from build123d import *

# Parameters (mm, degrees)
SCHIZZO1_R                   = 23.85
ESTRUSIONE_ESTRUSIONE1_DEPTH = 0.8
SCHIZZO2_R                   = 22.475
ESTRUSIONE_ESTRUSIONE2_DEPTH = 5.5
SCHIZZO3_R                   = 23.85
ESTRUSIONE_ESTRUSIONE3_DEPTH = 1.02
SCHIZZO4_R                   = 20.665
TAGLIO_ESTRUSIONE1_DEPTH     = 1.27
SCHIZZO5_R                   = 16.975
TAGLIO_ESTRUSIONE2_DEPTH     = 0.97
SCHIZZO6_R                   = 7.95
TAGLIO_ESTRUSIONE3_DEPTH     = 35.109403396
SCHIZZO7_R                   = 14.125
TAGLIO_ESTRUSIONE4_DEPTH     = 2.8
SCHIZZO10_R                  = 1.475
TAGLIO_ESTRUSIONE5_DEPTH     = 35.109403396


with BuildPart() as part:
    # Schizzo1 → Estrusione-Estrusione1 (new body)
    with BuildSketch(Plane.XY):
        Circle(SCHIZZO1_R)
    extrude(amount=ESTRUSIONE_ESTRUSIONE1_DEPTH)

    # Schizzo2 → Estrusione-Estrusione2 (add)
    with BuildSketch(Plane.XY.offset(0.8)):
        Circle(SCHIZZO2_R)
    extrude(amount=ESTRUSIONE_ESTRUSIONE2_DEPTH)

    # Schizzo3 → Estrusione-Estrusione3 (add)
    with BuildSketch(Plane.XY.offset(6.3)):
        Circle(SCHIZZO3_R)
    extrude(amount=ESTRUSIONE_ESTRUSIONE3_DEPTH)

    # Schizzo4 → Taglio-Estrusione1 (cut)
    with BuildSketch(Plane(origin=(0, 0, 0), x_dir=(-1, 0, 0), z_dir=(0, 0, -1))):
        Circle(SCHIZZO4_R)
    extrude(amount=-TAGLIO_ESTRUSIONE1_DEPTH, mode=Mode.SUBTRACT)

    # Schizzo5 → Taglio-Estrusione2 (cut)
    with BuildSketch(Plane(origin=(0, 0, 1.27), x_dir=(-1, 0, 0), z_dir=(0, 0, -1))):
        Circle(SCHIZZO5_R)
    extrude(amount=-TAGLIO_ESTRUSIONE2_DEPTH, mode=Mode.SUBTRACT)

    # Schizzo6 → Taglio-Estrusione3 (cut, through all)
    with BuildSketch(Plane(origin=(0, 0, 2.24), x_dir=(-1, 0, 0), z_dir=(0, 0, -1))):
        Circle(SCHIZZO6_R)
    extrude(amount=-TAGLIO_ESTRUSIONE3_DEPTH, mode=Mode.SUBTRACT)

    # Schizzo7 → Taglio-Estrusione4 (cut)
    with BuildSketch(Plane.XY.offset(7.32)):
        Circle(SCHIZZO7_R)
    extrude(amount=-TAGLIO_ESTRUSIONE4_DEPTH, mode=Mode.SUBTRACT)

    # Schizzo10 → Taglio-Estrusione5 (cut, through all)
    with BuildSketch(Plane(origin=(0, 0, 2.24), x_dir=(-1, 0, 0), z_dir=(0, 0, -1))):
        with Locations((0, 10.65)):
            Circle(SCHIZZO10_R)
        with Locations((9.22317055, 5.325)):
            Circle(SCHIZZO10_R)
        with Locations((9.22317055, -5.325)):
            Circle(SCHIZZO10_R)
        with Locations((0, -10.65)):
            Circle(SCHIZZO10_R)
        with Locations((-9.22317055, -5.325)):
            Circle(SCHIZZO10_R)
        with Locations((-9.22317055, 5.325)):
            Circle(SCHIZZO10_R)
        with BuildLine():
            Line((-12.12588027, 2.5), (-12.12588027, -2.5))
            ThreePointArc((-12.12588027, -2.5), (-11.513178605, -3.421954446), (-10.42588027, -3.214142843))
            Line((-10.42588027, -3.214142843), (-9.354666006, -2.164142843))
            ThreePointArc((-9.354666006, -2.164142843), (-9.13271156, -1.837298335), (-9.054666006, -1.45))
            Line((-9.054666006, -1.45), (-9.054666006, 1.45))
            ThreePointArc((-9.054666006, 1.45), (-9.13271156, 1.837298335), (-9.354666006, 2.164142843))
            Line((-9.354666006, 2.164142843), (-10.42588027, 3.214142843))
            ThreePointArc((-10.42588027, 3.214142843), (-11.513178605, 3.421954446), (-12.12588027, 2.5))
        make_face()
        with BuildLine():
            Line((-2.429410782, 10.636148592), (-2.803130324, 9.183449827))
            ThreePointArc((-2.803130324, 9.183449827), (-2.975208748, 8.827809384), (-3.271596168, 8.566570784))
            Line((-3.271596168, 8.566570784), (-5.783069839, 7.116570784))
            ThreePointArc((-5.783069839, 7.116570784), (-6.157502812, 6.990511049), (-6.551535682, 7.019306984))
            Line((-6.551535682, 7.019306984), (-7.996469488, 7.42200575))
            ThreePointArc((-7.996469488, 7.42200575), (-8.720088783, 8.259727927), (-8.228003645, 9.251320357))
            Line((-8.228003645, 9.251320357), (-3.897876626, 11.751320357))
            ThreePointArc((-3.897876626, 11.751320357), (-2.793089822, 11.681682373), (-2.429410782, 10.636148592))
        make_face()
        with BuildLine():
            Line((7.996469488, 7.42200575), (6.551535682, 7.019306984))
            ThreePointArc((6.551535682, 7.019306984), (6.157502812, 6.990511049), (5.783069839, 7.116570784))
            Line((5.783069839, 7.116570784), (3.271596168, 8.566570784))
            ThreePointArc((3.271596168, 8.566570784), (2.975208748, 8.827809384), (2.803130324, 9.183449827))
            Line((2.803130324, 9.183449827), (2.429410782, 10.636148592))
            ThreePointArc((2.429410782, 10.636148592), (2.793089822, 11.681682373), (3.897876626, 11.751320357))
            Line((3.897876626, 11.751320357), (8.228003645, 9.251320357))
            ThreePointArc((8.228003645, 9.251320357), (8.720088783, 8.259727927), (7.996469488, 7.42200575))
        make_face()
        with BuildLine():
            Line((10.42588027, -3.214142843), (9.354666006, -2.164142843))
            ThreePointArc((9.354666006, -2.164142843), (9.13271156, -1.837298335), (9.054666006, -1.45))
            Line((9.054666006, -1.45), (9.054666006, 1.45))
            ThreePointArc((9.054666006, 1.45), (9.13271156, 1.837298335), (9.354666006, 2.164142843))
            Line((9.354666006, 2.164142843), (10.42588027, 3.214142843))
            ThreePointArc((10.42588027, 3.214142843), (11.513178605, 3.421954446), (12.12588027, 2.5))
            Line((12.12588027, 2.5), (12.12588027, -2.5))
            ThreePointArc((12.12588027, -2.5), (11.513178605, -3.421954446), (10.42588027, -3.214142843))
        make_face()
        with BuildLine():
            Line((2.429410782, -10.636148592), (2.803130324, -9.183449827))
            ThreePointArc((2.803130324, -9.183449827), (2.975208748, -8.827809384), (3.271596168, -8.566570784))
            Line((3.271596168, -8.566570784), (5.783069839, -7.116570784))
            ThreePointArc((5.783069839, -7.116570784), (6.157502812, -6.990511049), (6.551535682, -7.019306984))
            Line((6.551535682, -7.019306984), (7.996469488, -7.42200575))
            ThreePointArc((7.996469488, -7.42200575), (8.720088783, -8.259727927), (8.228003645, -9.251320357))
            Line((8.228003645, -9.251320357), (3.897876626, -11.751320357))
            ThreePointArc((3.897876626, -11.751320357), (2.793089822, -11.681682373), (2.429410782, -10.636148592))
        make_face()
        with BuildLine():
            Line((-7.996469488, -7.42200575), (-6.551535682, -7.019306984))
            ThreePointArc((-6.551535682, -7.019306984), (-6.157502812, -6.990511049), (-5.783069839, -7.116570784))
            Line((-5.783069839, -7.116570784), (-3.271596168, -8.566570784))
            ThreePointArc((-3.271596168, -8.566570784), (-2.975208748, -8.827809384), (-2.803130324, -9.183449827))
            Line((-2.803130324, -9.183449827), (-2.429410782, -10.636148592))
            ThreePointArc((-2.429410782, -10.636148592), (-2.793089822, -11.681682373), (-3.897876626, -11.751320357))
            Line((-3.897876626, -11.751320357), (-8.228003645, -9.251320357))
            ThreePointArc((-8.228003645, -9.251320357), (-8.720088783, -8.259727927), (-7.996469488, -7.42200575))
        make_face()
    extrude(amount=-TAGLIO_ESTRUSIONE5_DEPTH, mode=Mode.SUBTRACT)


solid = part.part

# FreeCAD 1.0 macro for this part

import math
import FreeCAD as App
import Part
import Sketcher
from FreeCAD import Vector
Q = App.Units.Quantity

doc = App.newDocument("Part")
body = doc.addObject("PartDesign::Body", "Body")

sketch1 = body.newObject("Sketcher::SketchObject", "Sketch")
sketch1.AttachmentSupport = (doc.getObject("XY_Plane"), [""])
sketch1.MapMode = "FlatFace"
sketch1.addGeometry(Part.Circle(Vector(0, 0, 0), Vector(0, 0, 1), 24), False)
sketch1.addConstraint([
    Sketcher.Constraint("Coincident", 0, 3, -1, 1),
    Sketcher.Constraint("Diameter", 0, 47.7),
])
pad1 = body.newObject("PartDesign::Pad", "Pad")
pad1.Profile = sketch1
pad1.Length = 0.8

sketch2 = body.newObject("Sketcher::SketchObject", "Sketch001")
sketch2.AttachmentSupport = (doc.getObject("XY_Plane"), [""])
sketch2.MapMode = "FlatFace"
sketch2.AttachmentOffset = App.Placement(Vector(0, 0, 0.8), App.Rotation())
sketch2.addGeometry(Part.Circle(Vector(0, 0, 0), Vector(0, 0, 1), 22), False)
sketch2.addConstraint([
    Sketcher.Constraint("Coincident", 0, 3, -1, 1),
    Sketcher.Constraint("Diameter", 0, 44.95),
])
pad2 = body.newObject("PartDesign::Pad", "Pad001")
pad2.Profile = sketch2
pad2.Length = 5.5

sketch3 = body.newObject("Sketcher::SketchObject", "Sketch002")
sketch3.AttachmentSupport = (doc.getObject("XY_Plane"), [""])
sketch3.MapMode = "FlatFace"
sketch3.AttachmentOffset = App.Placement(Vector(0, 0, 6.3), App.Rotation())
sketch3.addGeometry(Part.Circle(Vector(0, 0, 0), Vector(0, 0, 1), 24), False)
sketch3.addConstraint([
    Sketcher.Constraint("Coincident", 0, 3, -1, 1),
    Sketcher.Constraint("Diameter", 0, 47.7),
])
pad3 = body.newObject("PartDesign::Pad", "Pad002")
pad3.Profile = sketch3
pad3.Length = 1.02

sketch4 = body.newObject("Sketcher::SketchObject", "Sketch003")
sketch4.AttachmentSupport = (doc.getObject("XY_Plane"), [""])
sketch4.MapMode = "FlatFace"
sketch4.addGeometry(Part.Circle(Vector(0, 0, 0), Vector(0, 0, 1), 21), False)
sketch4.addConstraint([
    Sketcher.Constraint("Coincident", 0, 3, -1, 1),
    Sketcher.Constraint("Diameter", 0, 41.33),
])
pocket1 = body.newObject("PartDesign::Pocket", "Pocket")
pocket1.Profile = sketch4
pocket1.Length = 1.27
pocket1.Reversed = True

sketch5 = body.newObject("Sketcher::SketchObject", "Sketch004")
sketch5.AttachmentSupport = (doc.getObject("XY_Plane"), [""])
sketch5.MapMode = "FlatFace"
sketch5.AttachmentOffset = App.Placement(Vector(0, 0, 1.27), App.Rotation())
sketch5.addGeometry(Part.Circle(Vector(0, 0, 0), Vector(0, 0, 1), 17), False)
sketch5.addConstraint([
    Sketcher.Constraint("Coincident", 0, 3, -1, 1),
    Sketcher.Constraint("Diameter", 0, 33.95),
])
pocket2 = body.newObject("PartDesign::Pocket", "Pocket001")
pocket2.Profile = sketch5
pocket2.Length = 0.97
pocket2.Reversed = True

sketch6 = body.newObject("Sketcher::SketchObject", "Sketch005")
sketch6.AttachmentSupport = (doc.getObject("XY_Plane"), [""])
sketch6.MapMode = "FlatFace"
sketch6.AttachmentOffset = App.Placement(Vector(0, 0, 2.24), App.Rotation())
sketch6.addGeometry(Part.Circle(Vector(0, 0, 0), Vector(0, 0, 1), 8), False)
sketch6.addConstraint([
    Sketcher.Constraint("Coincident", 0, 3, -1, 1),
    Sketcher.Constraint("Diameter", 0, 15.9),
])
pocket3 = body.newObject("PartDesign::Pocket", "Pocket002")
pocket3.Profile = sketch6
pocket3.Type = "ThroughAll"
pocket3.Reversed = True

sketch7 = body.newObject("Sketcher::SketchObject", "Sketch006")
sketch7.AttachmentSupport = (doc.getObject("XY_Plane"), [""])
sketch7.MapMode = "FlatFace"
sketch7.AttachmentOffset = App.Placement(Vector(0, 0, 7.32), App.Rotation())
sketch7.addGeometry(Part.Circle(Vector(0, 0, 0), Vector(0, 0, 1), 14), False)
sketch7.addConstraint([
    Sketcher.Constraint("Coincident", 0, 3, -1, 1),
    Sketcher.Constraint("Diameter", 0, 28.25),
])
pocket4 = body.newObject("PartDesign::Pocket", "Pocket003")
pocket4.Profile = sketch7
pocket4.Length = 2.8

sketch8 = body.newObject("Sketcher::SketchObject", "Sketch007")
sketch8.AttachmentSupport = (doc.getObject("XY_Plane"), [""])
sketch8.MapMode = "FlatFace"
sketch8.AttachmentOffset = App.Placement(Vector(0, 0, 2.24), App.Rotation())
sketch8.addGeometry([
    Part.Circle(Vector(0, 10.7, 0), Vector(0, 0, 1), 1.5),
    Part.Circle(Vector(-9.2, 5.3, 0), Vector(0, 0, 1), 1.5),
    Part.Circle(Vector(-9.2, -5.3, 0), Vector(0, 0, 1), 1.5),
    Part.Circle(Vector(0, -10.7, 0), Vector(0, 0, 1), 1.5),
    Part.Circle(Vector(9.2, -5.3, 0), Vector(0, 0, 1), 1.5),
    Part.Circle(Vector(9.2, 5.3, 0), Vector(0, 0, 1), 1.5),
    Part.LineSegment(Vector(12.1, 2.5, 0), Vector(12.1, -2.5, 0)),
    Part.ArcOfCircle(Part.Circle(Vector(11.1, -2.5, 0), Vector(0, 0, 1), 1), math.radians(-134), math.radians(0)),
    Part.LineSegment(Vector(10.4, -3.2, 0), Vector(9.4, -2.2, 0)),
    Part.ArcOfCircle(Part.Circle(Vector(10.1, -1.5, 0), Vector(0, 0, 1), 1), math.radians(180), math.radians(226)),
    Part.LineSegment(Vector(9.1, -1.4, 0), Vector(9.1, 1.4, 0)),
    Part.ArcOfCircle(Part.Circle(Vector(10.1, 1.5, 0), Vector(0, 0, 1), 1), math.radians(134), math.radians(180)),
    Part.LineSegment(Vector(9.4, 2.2, 0), Vector(10.4, 3.2, 0)),
    Part.ArcOfCircle(Part.Circle(Vector(11.1, 2.5, 0), Vector(0, 0, 1), 1), math.radians(0), math.radians(134)),
    Part.LineSegment(Vector(2.8, 9.2, 0), Vector(2.4, 10.6, 0)),
    Part.ArcOfCircle(Part.Circle(Vector(3.4, 10.9, 0), Vector(0, 0, 1), 1), math.radians(60), math.radians(194)),
    Part.LineSegment(Vector(3.9, 11.8, 0), Vector(8.2, 9.3, 0)),
    Part.ArcOfCircle(Part.Circle(Vector(7.7, 8.4, 0), Vector(0, 0, 1), 1), math.radians(-74), math.radians(60)),
    Part.LineSegment(Vector(8, 7.4, 0), Vector(6.6, 7, 0)),
    Part.ArcOfCircle(Part.Circle(Vector(6.3, 8, 0), Vector(0, 0, 1), 1), math.radians(-120), math.radians(-74)),
    Part.LineSegment(Vector(5.8, 7.1, 0), Vector(3.3, 8.6, 0)),
    Part.ArcOfCircle(Part.Circle(Vector(3.8, 9.4, 0), Vector(0, 0, 1), 1), math.radians(-166), math.radians(-120)),
    Part.LineSegment(Vector(-6.6, 7, 0), Vector(-8, 7.4, 0)),
    Part.ArcOfCircle(Part.Circle(Vector(-7.7, 8.4, 0), Vector(0, 0, 1), 1), math.radians(120), math.radians(254)),
    Part.LineSegment(Vector(-8.2, 9.3, 0), Vector(-3.9, 11.8, 0)),
    Part.ArcOfCircle(Part.Circle(Vector(-3.4, 10.9, 0), Vector(0, 0, 1), 1), math.radians(-14), math.radians(120)),
    Part.LineSegment(Vector(-2.4, 10.6, 0), Vector(-2.8, 9.2, 0)),
    Part.ArcOfCircle(Part.Circle(Vector(-3.8, 9.4, 0), Vector(0, 0, 1), 1), math.radians(-60), math.radians(-14)),
    Part.LineSegment(Vector(-3.3, 8.6, 0), Vector(-5.8, 7.1, 0)),
    Part.ArcOfCircle(Part.Circle(Vector(-6.3, 8, 0), Vector(0, 0, 1), 1), math.radians(-106), math.radians(-60)),
    Part.LineSegment(Vector(-9.4, -2.2, 0), Vector(-10.4, -3.2, 0)),
    Part.ArcOfCircle(Part.Circle(Vector(-11.1, -2.5, 0), Vector(0, 0, 1), 1), math.radians(180), math.radians(314)),
    Part.LineSegment(Vector(-12.1, -2.5, 0), Vector(-12.1, 2.5, 0)),
    Part.ArcOfCircle(Part.Circle(Vector(-11.1, 2.5, 0), Vector(0, 0, 1), 1), math.radians(46), math.radians(180)),
    Part.LineSegment(Vector(-10.4, 3.2, 0), Vector(-9.4, 2.2, 0)),
    Part.ArcOfCircle(Part.Circle(Vector(-10.1, 1.5, 0), Vector(0, 0, 1), 1), math.radians(0), math.radians(46)),
    Part.LineSegment(Vector(-9.1, 1.4, 0), Vector(-9.1, -1.4, 0)),
    Part.ArcOfCircle(Part.Circle(Vector(-10.1, -1.5, 0), Vector(0, 0, 1), 1), math.radians(-46), math.radians(0)),
    Part.LineSegment(Vector(-2.8, -9.2, 0), Vector(-2.4, -10.6, 0)),
    Part.ArcOfCircle(Part.Circle(Vector(-3.4, -10.9, 0), Vector(0, 0, 1), 1), math.radians(-120), math.radians(14)),
    Part.LineSegment(Vector(-3.9, -11.8, 0), Vector(-8.2, -9.3, 0)),
    Part.ArcOfCircle(Part.Circle(Vector(-7.7, -8.4, 0), Vector(0, 0, 1), 1), math.radians(106), math.radians(240)),
    Part.LineSegment(Vector(-8, -7.4, 0), Vector(-6.6, -7, 0)),
    Part.ArcOfCircle(Part.Circle(Vector(-6.3, -8, 0), Vector(0, 0, 1), 1), math.radians(60), math.radians(106)),
    Part.LineSegment(Vector(-5.8, -7.1, 0), Vector(-3.3, -8.6, 0)),
    Part.ArcOfCircle(Part.Circle(Vector(-3.8, -9.4, 0), Vector(0, 0, 1), 1), math.radians(14), math.radians(60)),
    Part.LineSegment(Vector(6.6, -7, 0), Vector(8, -7.4, 0)),
    Part.ArcOfCircle(Part.Circle(Vector(7.7, -8.4, 0), Vector(0, 0, 1), 1), math.radians(-60), math.radians(74)),
    Part.LineSegment(Vector(8.2, -9.3, 0), Vector(3.9, -11.8, 0)),
    Part.ArcOfCircle(Part.Circle(Vector(3.4, -10.9, 0), Vector(0, 0, 1), 1), math.radians(166), math.radians(300)),
    Part.LineSegment(Vector(2.4, -10.6, 0), Vector(2.8, -9.2, 0)),
    Part.ArcOfCircle(Part.Circle(Vector(3.8, -9.4, 0), Vector(0, 0, 1), 1), math.radians(120), math.radians(166)),
    Part.LineSegment(Vector(3.3, -8.6, 0), Vector(5.8, -7.1, 0)),
    Part.ArcOfCircle(Part.Circle(Vector(6.3, -8, 0), Vector(0, 0, 1), 1), math.radians(74), math.radians(120)),
], False)
sketch8.addConstraint([
    Sketcher.Constraint("Tangent", 6, 2, 7, 2),
    Sketcher.Constraint("Tangent", 7, 1, 8, 1),
    Sketcher.Constraint("Tangent", 8, 2, 9, 2),
    Sketcher.Constraint("Tangent", 9, 1, 10, 1),
    Sketcher.Constraint("Tangent", 10, 2, 11, 2),
    Sketcher.Constraint("Tangent", 11, 1, 12, 1),
    Sketcher.Constraint("Tangent", 12, 2, 13, 2),
    Sketcher.Constraint("Tangent", 13, 1, 6, 1),
    Sketcher.Constraint("Tangent", 14, 2, 15, 2),
    Sketcher.Constraint("Tangent", 15, 1, 16, 1),
    Sketcher.Constraint("Tangent", 16, 2, 17, 2),
    Sketcher.Constraint("Tangent", 17, 1, 18, 1),
    Sketcher.Constraint("Tangent", 18, 2, 19, 2),
    Sketcher.Constraint("Tangent", 19, 1, 20, 1),
    Sketcher.Constraint("Tangent", 20, 2, 21, 2),
    Sketcher.Constraint("Tangent", 21, 1, 14, 1),
    Sketcher.Constraint("Tangent", 22, 2, 23, 2),
    Sketcher.Constraint("Tangent", 23, 1, 24, 1),
    Sketcher.Constraint("Tangent", 24, 2, 25, 2),
    Sketcher.Constraint("Tangent", 25, 1, 26, 1),
    Sketcher.Constraint("Tangent", 26, 2, 27, 2),
    Sketcher.Constraint("Tangent", 27, 1, 28, 1),
    Sketcher.Constraint("Tangent", 28, 2, 29, 2),
    Sketcher.Constraint("Tangent", 29, 1, 22, 1),
    Sketcher.Constraint("Tangent", 30, 2, 31, 2),
    Sketcher.Constraint("Tangent", 31, 1, 32, 1),
    Sketcher.Constraint("Tangent", 32, 2, 33, 2),
    Sketcher.Constraint("Tangent", 33, 1, 34, 1),
    Sketcher.Constraint("Tangent", 34, 2, 35, 2),
    Sketcher.Constraint("Tangent", 35, 1, 36, 1),
    Sketcher.Constraint("Tangent", 36, 2, 37, 2),
    Sketcher.Constraint("Tangent", 37, 1, 30, 1),
    Sketcher.Constraint("Tangent", 38, 2, 39, 2),
    Sketcher.Constraint("Tangent", 39, 1, 40, 1),
    Sketcher.Constraint("Tangent", 40, 2, 41, 2),
    Sketcher.Constraint("Tangent", 41, 1, 42, 1),
    Sketcher.Constraint("Tangent", 42, 2, 43, 2),
    Sketcher.Constraint("Tangent", 43, 1, 44, 1),
    Sketcher.Constraint("Tangent", 44, 2, 45, 2),
    Sketcher.Constraint("Tangent", 45, 1, 38, 1),
    Sketcher.Constraint("Tangent", 46, 2, 47, 2),
    Sketcher.Constraint("Tangent", 47, 1, 48, 1),
    Sketcher.Constraint("Tangent", 48, 2, 49, 2),
    Sketcher.Constraint("Tangent", 49, 1, 50, 1),
    Sketcher.Constraint("Tangent", 50, 2, 51, 2),
    Sketcher.Constraint("Tangent", 51, 1, 52, 1),
    Sketcher.Constraint("Tangent", 52, 2, 53, 2),
    Sketcher.Constraint("Tangent", 53, 1, 46, 1),
    Sketcher.Constraint("Vertical", 6),
    Sketcher.Constraint("Vertical", 10),
    Sketcher.Constraint("Vertical", 32),
    Sketcher.Constraint("Vertical", 36),
    Sketcher.Constraint("Equal", 0, 1),
    Sketcher.Constraint("Equal", 1, 2),
    Sketcher.Constraint("Equal", 2, 3),
    Sketcher.Constraint("Equal", 3, 4),
    Sketcher.Constraint("Equal", 4, 5),
    Sketcher.Constraint("Equal", 7, 9),
    Sketcher.Constraint("Equal", 9, 11),
    Sketcher.Constraint("Equal", 11, 13),
    Sketcher.Constraint("Equal", 13, 15),
    Sketcher.Constraint("Equal", 15, 17),
    Sketcher.Constraint("Equal", 17, 19),
    Sketcher.Constraint("Equal", 19, 21),
    Sketcher.Constraint("Equal", 21, 23),
    Sketcher.Constraint("Equal", 23, 25),
    Sketcher.Constraint("Equal", 25, 27),
    Sketcher.Constraint("Equal", 27, 29),
    Sketcher.Constraint("Equal", 29, 31),
    Sketcher.Constraint("Equal", 31, 33),
    Sketcher.Constraint("Equal", 33, 35),
    Sketcher.Constraint("Equal", 35, 37),
    Sketcher.Constraint("Equal", 37, 39),
    Sketcher.Constraint("Equal", 39, 41),
    Sketcher.Constraint("Equal", 41, 43),
    Sketcher.Constraint("Equal", 43, 45),
    Sketcher.Constraint("Equal", 45, 47),
    Sketcher.Constraint("Equal", 47, 49),
    Sketcher.Constraint("Equal", 49, 51),
    Sketcher.Constraint("Equal", 51, 53),
    Sketcher.Constraint("Symmetric", 0, 3, 3, 3, -1, 1),
    Sketcher.Constraint("Symmetric", 1, 3, 4, 3, -1, 1),
    Sketcher.Constraint("Symmetric", 2, 3, 5, 3, -1, 1),
    Sketcher.Constraint("Symmetric", 13, 3, 31, 3, -1, 1),
    Sketcher.Constraint("Symmetric", 9, 3, 35, 3, -1, 1),
    Sketcher.Constraint("Symmetric", 15, 3, 39, 3, -1, 1),
    Sketcher.Constraint("Symmetric", 17, 3, 41, 3, -1, 1),
    Sketcher.Constraint("Symmetric", 19, 3, 43, 3, -1, 1),
    Sketcher.Constraint("Symmetric", 21, 3, 45, 3, -1, 1),
    Sketcher.Constraint("Symmetric", 23, 3, 47, 3, -1, 1),
    Sketcher.Constraint("Symmetric", 25, 3, 49, 3, -1, 1),
    Sketcher.Constraint("Symmetric", 27, 3, 51, 3, -1, 1),
    Sketcher.Constraint("Symmetric", 29, 3, 53, 3, -1, 1),
    Sketcher.Constraint("Symmetric", 2, 3, 4, 3, -2),
    Sketcher.Constraint("Symmetric", 17, 3, 23, 3, -2),
    Sketcher.Constraint("Symmetric", 15, 3, 25, 3, -2),
    Sketcher.Constraint("Symmetric", 21, 3, 27, 3, -2),
    Sketcher.Constraint("Symmetric", 19, 3, 29, 3, -2),
    Sketcher.Constraint("Symmetric", 7, 1, 30, 2, -2),
    Sketcher.Constraint("Symmetric", 12, 2, 33, 1, -2),
    Sketcher.Constraint("PointOnObject", 0, 3, -2),
    Sketcher.Constraint("Parallel", 16, 20),
    Sketcher.Constraint("Equal", 12, 14),
    Sketcher.Constraint("Equal", 14, 18),
    Sketcher.Constraint("Radius", 7, 1.0),
    Sketcher.Constraint("Diameter", 0, 2.95),
    Sketcher.Constraint("DistanceY", 6, 2, 6, 1, 5.0),
    Sketcher.Constraint("Angle", 16, Q("-30 deg")),
    Sketcher.Constraint("Distance", 16, 5.0),
    Sketcher.Constraint("DistanceY", 10, 1, 10, 2, 2.9),
    Sketcher.Constraint("Distance", 8, 1.5),
    Sketcher.Constraint("Distance", 20, 2.9),
    Sketcher.Constraint("DistanceY", -1, 1, 0, 3, 10.65),
    Sketcher.Constraint("DistanceY", -1, 1, 1, 3, 5.325),
    Sketcher.Constraint("DistanceX", 1, 3, -1, 1, 9.223171),
    Sketcher.Constraint("DistanceX", -1, 1, 7, 3, 11.12588),
    Sketcher.Constraint("DistanceX", -1, 1, 19, 3, 6.28307),
    Sketcher.Constraint("DistanceY", -1, 1, 14, 2, 10.636149),
])
pocket5 = body.newObject("PartDesign::Pocket", "Pocket004")
pocket5.Profile = sketch8
pocket5.Type = "ThroughAll"
pocket5.Reversed = True

doc.recompute()
